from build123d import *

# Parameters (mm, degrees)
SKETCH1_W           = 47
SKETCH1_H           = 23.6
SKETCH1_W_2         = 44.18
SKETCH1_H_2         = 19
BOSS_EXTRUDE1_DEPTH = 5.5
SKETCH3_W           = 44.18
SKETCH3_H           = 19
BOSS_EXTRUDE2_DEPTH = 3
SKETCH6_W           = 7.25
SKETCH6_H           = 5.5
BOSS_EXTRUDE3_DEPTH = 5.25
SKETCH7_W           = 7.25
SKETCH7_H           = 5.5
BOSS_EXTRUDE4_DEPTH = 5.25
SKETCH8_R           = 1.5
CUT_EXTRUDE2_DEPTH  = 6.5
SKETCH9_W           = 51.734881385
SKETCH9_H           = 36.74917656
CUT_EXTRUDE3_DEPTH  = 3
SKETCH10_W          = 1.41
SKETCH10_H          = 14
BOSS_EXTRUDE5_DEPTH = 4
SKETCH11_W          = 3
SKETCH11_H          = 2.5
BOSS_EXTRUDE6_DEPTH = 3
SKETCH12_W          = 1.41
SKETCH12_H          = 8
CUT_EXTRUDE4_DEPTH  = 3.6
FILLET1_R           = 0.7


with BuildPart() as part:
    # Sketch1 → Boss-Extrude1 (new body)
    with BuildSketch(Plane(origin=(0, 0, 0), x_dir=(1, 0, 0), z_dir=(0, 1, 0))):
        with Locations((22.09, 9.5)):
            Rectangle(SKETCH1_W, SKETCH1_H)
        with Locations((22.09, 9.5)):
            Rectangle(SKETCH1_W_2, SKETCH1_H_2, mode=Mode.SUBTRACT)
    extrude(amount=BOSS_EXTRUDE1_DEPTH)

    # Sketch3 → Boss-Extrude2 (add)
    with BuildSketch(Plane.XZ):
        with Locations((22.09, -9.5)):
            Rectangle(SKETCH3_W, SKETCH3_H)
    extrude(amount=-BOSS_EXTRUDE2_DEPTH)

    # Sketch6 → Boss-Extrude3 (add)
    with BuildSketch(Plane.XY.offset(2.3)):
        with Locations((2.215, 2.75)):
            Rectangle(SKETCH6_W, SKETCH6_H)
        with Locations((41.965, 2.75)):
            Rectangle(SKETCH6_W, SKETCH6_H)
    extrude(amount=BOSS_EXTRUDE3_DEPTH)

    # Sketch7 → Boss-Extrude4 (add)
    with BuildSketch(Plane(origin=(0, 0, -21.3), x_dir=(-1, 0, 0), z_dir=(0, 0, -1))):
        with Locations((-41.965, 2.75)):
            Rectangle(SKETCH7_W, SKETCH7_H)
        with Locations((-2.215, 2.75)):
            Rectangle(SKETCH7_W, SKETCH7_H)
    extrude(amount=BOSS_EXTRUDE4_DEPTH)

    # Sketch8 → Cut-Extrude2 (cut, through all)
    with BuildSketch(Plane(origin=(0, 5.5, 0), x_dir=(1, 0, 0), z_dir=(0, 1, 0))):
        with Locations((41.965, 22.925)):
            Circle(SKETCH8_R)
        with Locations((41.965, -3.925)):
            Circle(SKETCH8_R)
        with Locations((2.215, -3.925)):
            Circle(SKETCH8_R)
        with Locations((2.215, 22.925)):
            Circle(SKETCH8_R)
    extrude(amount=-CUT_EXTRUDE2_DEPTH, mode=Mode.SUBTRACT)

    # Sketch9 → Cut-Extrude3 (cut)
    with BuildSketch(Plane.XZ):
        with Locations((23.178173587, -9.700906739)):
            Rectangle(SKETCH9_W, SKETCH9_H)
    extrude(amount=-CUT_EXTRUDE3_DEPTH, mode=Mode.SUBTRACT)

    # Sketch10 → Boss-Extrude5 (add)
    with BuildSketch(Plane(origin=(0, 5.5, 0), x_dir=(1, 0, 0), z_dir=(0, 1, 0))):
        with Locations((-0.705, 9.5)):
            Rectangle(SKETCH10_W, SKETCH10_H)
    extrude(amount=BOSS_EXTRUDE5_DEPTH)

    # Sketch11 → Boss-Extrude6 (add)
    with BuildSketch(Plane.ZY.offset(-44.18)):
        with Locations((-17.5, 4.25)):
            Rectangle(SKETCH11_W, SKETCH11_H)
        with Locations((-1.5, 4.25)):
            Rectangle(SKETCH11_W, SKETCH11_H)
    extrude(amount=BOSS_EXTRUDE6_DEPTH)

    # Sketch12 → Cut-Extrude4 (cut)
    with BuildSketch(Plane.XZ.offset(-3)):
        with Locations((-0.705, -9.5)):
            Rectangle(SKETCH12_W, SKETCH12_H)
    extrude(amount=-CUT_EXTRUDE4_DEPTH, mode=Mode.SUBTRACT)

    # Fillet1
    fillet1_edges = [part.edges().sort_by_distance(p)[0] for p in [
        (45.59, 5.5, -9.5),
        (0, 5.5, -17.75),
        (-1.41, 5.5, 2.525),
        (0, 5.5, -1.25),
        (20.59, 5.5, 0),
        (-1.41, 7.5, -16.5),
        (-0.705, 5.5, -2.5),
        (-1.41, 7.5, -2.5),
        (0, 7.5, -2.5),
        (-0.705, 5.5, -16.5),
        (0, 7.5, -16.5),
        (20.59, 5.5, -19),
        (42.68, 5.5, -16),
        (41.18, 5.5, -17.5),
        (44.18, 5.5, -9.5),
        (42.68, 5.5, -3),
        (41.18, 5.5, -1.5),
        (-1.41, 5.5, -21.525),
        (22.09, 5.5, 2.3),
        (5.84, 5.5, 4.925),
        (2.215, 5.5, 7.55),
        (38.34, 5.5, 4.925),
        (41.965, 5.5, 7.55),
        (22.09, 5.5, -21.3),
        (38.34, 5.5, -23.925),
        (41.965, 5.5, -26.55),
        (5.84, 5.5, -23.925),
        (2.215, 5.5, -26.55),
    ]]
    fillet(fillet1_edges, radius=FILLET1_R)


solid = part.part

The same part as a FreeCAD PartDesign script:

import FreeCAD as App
import Part
import Sketcher

V = App.Vector
Q = App.Units.Quantity


def edges_at(feature, points):
    """Names of the edges that pass closest to the given points."""
    edges = feature.Shape.Edges
    near = lambda p: min(range(len(edges)), key=lambda i: edges[i].distToShape(Part.Vertex(*p))[0])
    return sorted({f"Edge{near(p) + 1}" for p in points})

doc = App.newDocument("Part")
body = doc.addObject("PartDesign::Body", "Body")

# Sketch on XZ plane
sketch1 = body.newObject("Sketcher::SketchObject", "Sketch")
sketch1.AttachmentSupport = (doc.getObject("XZ_Plane"), [""])
sketch1.MapMode = "FlatFace"
sketch1.addGeometry([
    Part.LineSegment(V(-1.41, -21.3, 0), V(-1.41, 2.3, 0)),  # 0
    Part.LineSegment(V(-1.41, 2.3, 0), V(45.59, 2.3, 0)),  # 1
    Part.LineSegment(V(45.59, 2.3, 0), V(45.59, -21.3, 0)),  # 2
    Part.LineSegment(V(45.59, -21.3, 0), V(-1.41, -21.3, 0)),  # 3
    Part.LineSegment(V(44.18, 0, 0), V(0, 0, 0)),  # 4
    Part.LineSegment(V(0, 0, 0), V(0, -19, 0)),  # 5
    Part.LineSegment(V(0, -19, 0), V(44.18, -19, 0)),  # 6
    Part.LineSegment(V(44.18, -19, 0), V(44.18, 0, 0)),  # 7
], False)
sketch1.addConstraint([
    Sketcher.Constraint("Coincident", 0, 2, 1, 1),
    Sketcher.Constraint("Coincident", 1, 2, 2, 1),
    Sketcher.Constraint("Coincident", 2, 2, 3, 1),
    Sketcher.Constraint("Coincident", 3, 2, 0, 1),
    Sketcher.Constraint("Coincident", 4, 2, 5, 1),
    Sketcher.Constraint("Coincident", 5, 2, 6, 1),
    Sketcher.Constraint("Coincident", 6, 2, 7, 1),
    Sketcher.Constraint("Coincident", 7, 2, 4, 1),
    Sketcher.Constraint("Vertical", 0),
    Sketcher.Constraint("Horizontal", 1),
    Sketcher.Constraint("Vertical", 2),
    Sketcher.Constraint("Horizontal", 3),
    Sketcher.Constraint("Horizontal", 4),
    Sketcher.Constraint("Vertical", 5),
    Sketcher.Constraint("Horizontal", 6),
    Sketcher.Constraint("Vertical", 7),
    Sketcher.Constraint("Coincident", 4, 2, -1, 1),
    Sketcher.Constraint("DistanceX", 1, 1, 1, 2, Q("47 mm")),
    Sketcher.Constraint("DistanceY", 5, 2, 5, 1, Q("19 mm")),
    Sketcher.Constraint("DistanceY", 0, 1, 0, 2, Q("23.6 mm")),
    Sketcher.Constraint("DistanceX", 4, 2, 4, 1, Q("44.18 mm")),
    Sketcher.Constraint("DistanceY", -1, 1, 0, 2, Q("2.3 mm")),
    Sketcher.Constraint("DistanceX", 0, 2, -1, 1, Q("1.41 mm")),
])
pad1 = body.newObject("PartDesign::Pad", "Pad")
pad1.Profile = sketch1
pad1.Length = 5.5
pad1.Reversed = True

# Sketch on XZ plane
sketch2 = body.newObject("Sketcher::SketchObject", "Sketch001")
sketch2.AttachmentSupport = (doc.getObject("XZ_Plane"), [""])
sketch2.MapMode = "FlatFace"
sketch2.addGeometry([
    Part.LineSegment(V(0, 0, 0), V(0, -19, 0)),
    Part.LineSegment(V(0, -19, 0), V(44.18, -19, 0)),
    Part.LineSegment(V(44.18, -19, 0), V(44.18, 0, 0)),
    Part.LineSegment(V(44.18, 0, 0), V(0, 0, 0)),
], False)
sketch2.addConstraint([
    Sketcher.Constraint("Coincident", 0, 2, 1, 1),
    Sketcher.Constraint("Coincident", 1, 2, 2, 1),
    Sketcher.Constraint("Coincident", 2, 2, 3, 1),
    Sketcher.Constraint("Coincident", 3, 2, 0, 1),
    Sketcher.Constraint("Vertical", 0),
    Sketcher.Constraint("Horizontal", 1),
    Sketcher.Constraint("Vertical", 2),
    Sketcher.Constraint("Horizontal", 3),
    Sketcher.Constraint("Coincident", 3, 2, -1, 1),
    Sketcher.Constraint("DistanceY", 0, 2, 0, 1, Q("19 mm")),
    Sketcher.Constraint("DistanceX", 1, 1, 1, 2, Q("44.18 mm")),
])
pad2 = body.newObject("PartDesign::Pad", "Pad001")
pad2.Profile = sketch2
pad2.Length = 3
pad2.Reversed = True

# Sketch on XY plane
sketch3 = body.newObject("Sketcher::SketchObject", "Sketch002")
sketch3.AttachmentSupport = (doc.getObject("XY_Plane"), [""])
sketch3.MapMode = "FlatFace"
sketch3.AttachmentOffset = App.Placement(V(0, 0, 2.3), App.Rotation())
sketch3.addGeometry([
    Part.LineSegment(V(-1.41, 5.5, 0), V(-1.41, 0, 0)),  # 0
    Part.LineSegment(V(-1.41, 0, 0), V(5.84, 0, 0)),  # 1
    Part.LineSegment(V(5.84, 0, 0), V(5.84, 5.5, 0)),  # 2
    Part.LineSegment(V(5.84, 5.5, 0), V(-1.41, 5.5, 0)),  # 3
    Part.LineSegment(V(38.34, 5.5, 0), V(38.34, 0, 0)),  # 4
    Part.LineSegment(V(38.34, 0, 0), V(45.59, 0, 0)),  # 5
    Part.LineSegment(V(45.59, 0, 0), V(45.59, 5.5, 0)),  # 6
    Part.LineSegment(V(45.59, 5.5, 0), V(38.34, 5.5, 0)),  # 7
], False)
sketch3.addConstraint([
    Sketcher.Constraint("Coincident", 0, 2, 1, 1),
    Sketcher.Constraint("Coincident", 1, 2, 2, 1),
    Sketcher.Constraint("Coincident", 2, 2, 3, 1),
    Sketcher.Constraint("Coincident", 3, 2, 0, 1),
    Sketcher.Constraint("Coincident", 4, 2, 5, 1),
    Sketcher.Constraint("Coincident", 5, 2, 6, 1),
    Sketcher.Constraint("Coincident", 6, 2, 7, 1),
    Sketcher.Constraint("Coincident", 7, 2, 4, 1),
    Sketcher.Constraint("Vertical", 0),
    Sketcher.Constraint("Horizontal", 1),
    Sketcher.Constraint("Vertical", 2),
    Sketcher.Constraint("Horizontal", 3),
    Sketcher.Constraint("Vertical", 4),
    Sketcher.Constraint("Horizontal", 5),
    Sketcher.Constraint("Vertical", 6),
    Sketcher.Constraint("Horizontal", 7),
    Sketcher.Constraint("PointOnObject", 0, 2, -1),
    Sketcher.Constraint("PointOnObject", 4, 2, -1),
    Sketcher.Constraint("Horizontal", 3, 2, 6, 2),
    Sketcher.Constraint("Equal", 3, 5),
    Sketcher.Constraint("DistanceY", 0, 2, 0, 1, Q("5.5 mm")),
    Sketcher.Constraint("DistanceX", 0, 2, 5, 2, Q("47 mm")),
    Sketcher.Constraint("DistanceX", 1, 1, 1, 2, Q("7.25 mm")),
    Sketcher.Constraint("DistanceX", 0, 2, -1, 1, Q("1.41 mm")),
])
pad3 = body.newObject("PartDesign::Pad", "Pad002")
pad3.Profile = sketch3
pad3.Length = 5.25

# Sketch on XY plane
sketch4 = body.newObject("Sketcher::SketchObject", "Sketch003")
sketch4.AttachmentSupport = (doc.getObject("XY_Plane"), [""])
sketch4.MapMode = "FlatFace"
sketch4.AttachmentOffset = App.Placement(V(0, 0, -21.3), App.Rotation())
sketch4.addGeometry([
    Part.LineSegment(V(45.59, 5.5, 0), V(45.59, 0, 0)),  # 0
    Part.LineSegment(V(45.59, 0, 0), V(38.34, 0, 0)),  # 1
    Part.LineSegment(V(38.34, 0, 0), V(38.34, 5.5, 0)),  # 2
    Part.LineSegment(V(38.34, 5.5, 0), V(45.59, 5.5, 0)),  # 3
    Part.LineSegment(V(5.84, 5.5, 0), V(5.84, 0, 0)),  # 4
    Part.LineSegment(V(5.84, 0, 0), V(-1.41, 0, 0)),  # 5
    Part.LineSegment(V(-1.41, 0, 0), V(-1.41, 5.5, 0)),  # 6
    Part.LineSegment(V(-1.41, 5.5, 0), V(5.84, 5.5, 0)),  # 7
], False)
sketch4.addConstraint([
    Sketcher.Constraint("Coincident", 0, 2, 1, 1),
    Sketcher.Constraint("Coincident", 1, 2, 2, 1),
    Sketcher.Constraint("Coincident", 2, 2, 3, 1),
    Sketcher.Constraint("Coincident", 3, 2, 0, 1),
    Sketcher.Constraint("Coincident", 4, 2, 5, 1),
    Sketcher.Constraint("Coincident", 5, 2, 6, 1),
    Sketcher.Constraint("Coincident", 6, 2, 7, 1),
    Sketcher.Constraint("Coincident", 7, 2, 4, 1),
    Sketcher.Constraint("Vertical", 0),
    Sketcher.Constraint("Horizontal", 1),
    Sketcher.Constraint("Vertical", 2),
    Sketcher.Constraint("Horizontal", 3),
    Sketcher.Constraint("Vertical", 4),
    Sketcher.Constraint("Horizontal", 5),
    Sketcher.Constraint("Vertical", 6),
    Sketcher.Constraint("Horizontal", 7),
    Sketcher.Constraint("PointOnObject", 0, 2, -1),
    Sketcher.Constraint("PointOnObject", 4, 2, -1),
    Sketcher.Constraint("Horizontal", 3, 2, 6, 2),
    Sketcher.Constraint("Equal", 3, 5),
    Sketcher.Constraint("DistanceY", 0, 2, 0, 1, Q("5.5 mm")),
    Sketcher.Constraint("DistanceX", 5, 2, 0, 2, Q("47 mm")),
    Sketcher.Constraint("DistanceX", 1, 2, 1, 1, Q("7.25 mm")),
    Sketcher.Constraint("DistanceX", -1, 1, 0, 2, Q("45.59 mm")),
])
pad4 = body.newObject("PartDesign::Pad", "Pad003")
pad4.Profile = sketch4
pad4.Length = 5.25
pad4.Reversed = True

# Sketch on XZ plane
sketch5 = body.newObject("Sketcher::SketchObject", "Sketch004")
sketch5.AttachmentSupport = (doc.getObject("XZ_Plane"), [""])
sketch5.MapMode = "FlatFace"
sketch5.AttachmentOffset = App.Placement(V(0, 0, -5.5), App.Rotation())
sketch5.addGeometry([
    Part.Circle(V(41.965, -22.925, 0), V(0, 0, 1), 1.5),
    Part.Circle(V(41.965, 3.925, 0), V(0, 0, 1), 1.5),
    Part.Circle(V(2.215, 3.925, 0), V(0, 0, 1), 1.5),
    Part.Circle(V(2.215, -22.925, 0), V(0, 0, 1), 1.5),
], False)
sketch5.addConstraint([
    Sketcher.Constraint("Equal", 0, 1),
    Sketcher.Constraint("Equal", 1, 2),
    Sketcher.Constraint("Equal", 2, 3),
    Sketcher.Constraint("Horizontal", 1, 3, 2, 3),
    Sketcher.Constraint("Horizontal", 0, 3, 3, 3),
    Sketcher.Constraint("Vertical", 0, 3, 1, 3),
    Sketcher.Constraint("Vertical", 2, 3, 3, 3),
    Sketcher.Constraint("Diameter", 0, Q("3 mm")),
    Sketcher.Constraint("DistanceY", 0, 3, 1, 3, Q("26.85 mm")),
    Sketcher.Constraint("DistanceX", 2, 3, 1, 3, Q("39.75 mm")),
    Sketcher.Constraint("DistanceX", -1, 1, 0, 3, Q("41.965 mm")),
    Sketcher.Constraint("DistanceY", 0, 3, -1, 1, Q("22.925 mm")),
])
pocket1 = body.newObject("PartDesign::Pocket", "Pocket")
pocket1.Profile = sketch5
pocket1.Type = "ThroughAll"
pocket1.Reversed = True

# Sketch on XZ plane
sketch6 = body.newObject("Sketcher::SketchObject", "Sketch005")
sketch6.AttachmentSupport = (doc.getObject("XZ_Plane"), [""])
sketch6.MapMode = "FlatFace"
sketch6.addGeometry([
    Part.LineSegment(V(-2.689267, 8.673682, 0), V(-2.689267, -28.075495, 0)),
    Part.LineSegment(V(-2.689267, -28.075495, 0), V(49.045614, -28.075495, 0)),
    Part.LineSegment(V(49.045614, -28.075495, 0), V(49.045614, 8.673682, 0)),
    Part.LineSegment(V(49.045614, 8.673682, 0), V(-2.689267, 8.673682, 0)),
], False)
sketch6.addConstraint([
    Sketcher.Constraint("Coincident", 0, 2, 1, 1),
    Sketcher.Constraint("Coincident", 1, 2, 2, 1),
    Sketcher.Constraint("Coincident", 2, 2, 3, 1),
    Sketcher.Constraint("Coincident", 3, 2, 0, 1),
    Sketcher.Constraint("Vertical", 0),
    Sketcher.Constraint("Horizontal", 1),
    Sketcher.Constraint("Vertical", 2),
    Sketcher.Constraint("Horizontal", 3),
    Sketcher.Constraint("DistanceX", 1, 1, 1, 2, Q("51.734881 mm")),
    Sketcher.Constraint("DistanceY", 0, 2, 0, 1, Q("36.749177 mm")),
    Sketcher.Constraint("DistanceY", -1, 1, 2, 2, Q("8.673682 mm")),
    Sketcher.Constraint("DistanceX", 0, 2, -1, 1, Q("2.689267 mm")),
])
pocket2 = body.newObject("PartDesign::Pocket", "Pocket001")
pocket2.Profile = sketch6
pocket2.Length = 3

# Sketch on XZ plane
sketch7 = body.newObject("Sketcher::SketchObject", "Sketch006")
sketch7.AttachmentSupport = (doc.getObject("XZ_Plane"), [""])
sketch7.MapMode = "FlatFace"
sketch7.AttachmentOffset = App.Placement(V(0, 0, -5.5), App.Rotation())
sketch7.addGeometry([
    Part.LineSegment(V(-1.41, -16.5, 0), V(-1.41, -2.5, 0)),
    Part.LineSegment(V(-1.41, -2.5, 0), V(0, -2.5, 0)),
    Part.LineSegment(V(0, -2.5, 0), V(0, -16.5, 0)),
    Part.LineSegment(V(0, -16.5, 0), V(-1.41, -16.5, 0)),
], False)
sketch7.addConstraint([
    Sketcher.Constraint("Coincident", 0, 2, 1, 1),
    Sketcher.Constraint("Coincident", 1, 2, 2, 1),
    Sketcher.Constraint("Coincident", 2, 2, 3, 1),
    Sketcher.Constraint("Coincident", 3, 2, 0, 1),
    Sketcher.Constraint("Vertical", 0),
    Sketcher.Constraint("Horizontal", 1),
    Sketcher.Constraint("Vertical", 2),
    Sketcher.Constraint("Horizontal", 3),
    Sketcher.Constraint("PointOnObject", 1, 2, -2),
    Sketcher.Constraint("DistanceY", 0, 1, 0, 2, Q("14 mm")),
    Sketcher.Constraint("DistanceX", 1, 1, 1, 2, Q("1.41 mm")),
    Sketcher.Constraint("DistanceY", 0, 2, -1, 1, Q("2.5 mm")),
])
pad5 = body.newObject("PartDesign::Pad", "Pad004")
pad5.Profile = sketch7
pad5.Length = 4
pad5.Reversed = True

# Sketch on YZ plane
sketch8 = body.newObject("Sketcher::SketchObject", "Sketch007")
sketch8.AttachmentSupport = (doc.getObject("YZ_Plane"), [""])
sketch8.MapMode = "FlatFace"
sketch8.AttachmentOffset = App.Placement(V(0, 0, 44.18), App.Rotation())
sketch8.addGeometry([
    Part.LineSegment(V(5.5, -19, 0), V(3, -19, 0)),  # 0
    Part.LineSegment(V(3, -19, 0), V(3, -16, 0)),  # 1
    Part.LineSegment(V(3, -16, 0), V(5.5, -16, 0)),  # 2
    Part.LineSegment(V(5.5, -16, 0), V(5.5, -19, 0)),  # 3
    Part.LineSegment(V(5.5, -3, 0), V(3, -3, 0)),  # 4
    Part.LineSegment(V(3, -3, 0), V(3, 0, 0)),  # 5
    Part.LineSegment(V(3, 0, 0), V(5.5, 0, 0)),  # 6
    Part.LineSegment(V(5.5, 0, 0), V(5.5, -3, 0)),  # 7
], False)
sketch8.addConstraint([
    Sketcher.Constraint("Coincident", 0, 2, 1, 1),
    Sketcher.Constraint("Coincident", 1, 2, 2, 1),
    Sketcher.Constraint("Coincident", 2, 2, 3, 1),
    Sketcher.Constraint("Coincident", 3, 2, 0, 1),
    Sketcher.Constraint("Coincident", 4, 2, 5, 1),
    Sketcher.Constraint("Coincident", 5, 2, 6, 1),
    Sketcher.Constraint("Coincident", 6, 2, 7, 1),
    Sketcher.Constraint("Coincident", 7, 2, 4, 1),
    Sketcher.Constraint("Horizontal", 0),
    Sketcher.Constraint("Vertical", 1),
    Sketcher.Constraint("Horizontal", 2),
    Sketcher.Constraint("Vertical", 3),
    Sketcher.Constraint("Horizontal", 4),
    Sketcher.Constraint("Vertical", 5),
    Sketcher.Constraint("Horizontal", 6),
    Sketcher.Constraint("Vertical", 7),
    Sketcher.Constraint("PointOnObject", 5, 2, -1),
    Sketcher.Constraint("Vertical", 1, 2, 4, 2),
    Sketcher.Constraint("Vertical", 3, 2, 6, 2),
    Sketcher.Constraint("Equal", 3, 5),
    Sketcher.Constraint("DistanceY", 1, 1, 1, 2, Q("3 mm")),
    Sketcher.Constraint("DistanceX", 0, 2, 0, 1, Q("2.5 mm")),
    Sketcher.Constraint("DistanceX", -1, 1, 0, 2, Q("3 mm")),
    Sketcher.Constraint("DistanceY", 0, 2, -1, 1, Q("19 mm")),
])
pad6 = body.newObject("PartDesign::Pad", "Pad005")
pad6.Profile = sketch8
pad6.Length = 3
pad6.Reversed = True

# Sketch on XZ plane
sketch9 = body.newObject("Sketcher::SketchObject", "Sketch008")
sketch9.AttachmentSupport = (doc.getObject("XZ_Plane"), [""])
sketch9.MapMode = "FlatFace"
sketch9.AttachmentOffset = App.Placement(V(0, 0, -3), App.Rotation())
sketch9.addGeometry([
    Part.LineSegment(V(-1.41, -5.5, 0), V(-1.41, -13.5, 0)),
    Part.LineSegment(V(-1.41, -13.5, 0), V(0, -13.5, 0)),
    Part.LineSegment(V(0, -13.5, 0), V(0, -5.5, 0)),
    Part.LineSegment(V(0, -5.5, 0), V(-1.41, -5.5, 0)),
], False)
sketch9.addConstraint([
    Sketcher.Constraint("Coincident", 0, 2, 1, 1),
    Sketcher.Constraint("Coincident", 1, 2, 2, 1),
    Sketcher.Constraint("Coincident", 2, 2, 3, 1),
    Sketcher.Constraint("Coincident", 3, 2, 0, 1),
    Sketcher.Constraint("Vertical", 0),
    Sketcher.Constraint("Horizontal", 1),
    Sketcher.Constraint("Vertical", 2),
    Sketcher.Constraint("Horizontal", 3),
    Sketcher.Constraint("PointOnObject", 1, 2, -2),
    Sketcher.Constraint("DistanceY", 0, 2, 0, 1, Q("8 mm")),
    Sketcher.Constraint("DistanceX", 1, 1, 1, 2, Q("1.41 mm")),
    Sketcher.Constraint("DistanceY", 0, 2, -1, 1, Q("13.5 mm")),
])
pocket3 = body.newObject("PartDesign::Pocket", "Pocket002")
pocket3.Profile = sketch9
pocket3.Length = 3.6
doc.recompute()

fillet = body.newObject("PartDesign::Fillet", "Fillet")
fillet.Base = (pocket3, edges_at(pocket3, [
    (45.59, 5.5, -9.5),
    (0, 5.5, -17.75),
    (-1.41, 5.5, 2.525),
    (0, 5.5, -1.25),
    (20.59, 5.5, 0),
    (-1.41, 7.5, -16.5),
    (-0.705, 5.5, -2.5),
    (-1.41, 7.5, -2.5),
    (0, 7.5, -2.5),
    (-0.705, 5.5, -16.5),
    (0, 7.5, -16.5),
    (20.59, 5.5, -19),
    (42.68, 5.5, -16),
    (41.18, 5.5, -17.5),
    (44.18, 5.5, -9.5),
    (42.68, 5.5, -3),
    (41.18, 5.5, -1.5),
    (-1.41, 5.5, -21.525),
    (22.09, 5.5, 2.3),
    (5.84, 5.5, 4.925),
    (2.215, 5.5, 7.55),
    (38.34, 5.5, 4.925),
    (41.965, 5.5, 7.55),
    (22.09, 5.5, -21.3),
    (38.34, 5.5, -23.925),
    (41.965, 5.5, -26.55),
    (5.84, 5.5, -23.925),
    (2.215, 5.5, -26.55),
]))
fillet.Radius = 0.7

doc.recompute()
